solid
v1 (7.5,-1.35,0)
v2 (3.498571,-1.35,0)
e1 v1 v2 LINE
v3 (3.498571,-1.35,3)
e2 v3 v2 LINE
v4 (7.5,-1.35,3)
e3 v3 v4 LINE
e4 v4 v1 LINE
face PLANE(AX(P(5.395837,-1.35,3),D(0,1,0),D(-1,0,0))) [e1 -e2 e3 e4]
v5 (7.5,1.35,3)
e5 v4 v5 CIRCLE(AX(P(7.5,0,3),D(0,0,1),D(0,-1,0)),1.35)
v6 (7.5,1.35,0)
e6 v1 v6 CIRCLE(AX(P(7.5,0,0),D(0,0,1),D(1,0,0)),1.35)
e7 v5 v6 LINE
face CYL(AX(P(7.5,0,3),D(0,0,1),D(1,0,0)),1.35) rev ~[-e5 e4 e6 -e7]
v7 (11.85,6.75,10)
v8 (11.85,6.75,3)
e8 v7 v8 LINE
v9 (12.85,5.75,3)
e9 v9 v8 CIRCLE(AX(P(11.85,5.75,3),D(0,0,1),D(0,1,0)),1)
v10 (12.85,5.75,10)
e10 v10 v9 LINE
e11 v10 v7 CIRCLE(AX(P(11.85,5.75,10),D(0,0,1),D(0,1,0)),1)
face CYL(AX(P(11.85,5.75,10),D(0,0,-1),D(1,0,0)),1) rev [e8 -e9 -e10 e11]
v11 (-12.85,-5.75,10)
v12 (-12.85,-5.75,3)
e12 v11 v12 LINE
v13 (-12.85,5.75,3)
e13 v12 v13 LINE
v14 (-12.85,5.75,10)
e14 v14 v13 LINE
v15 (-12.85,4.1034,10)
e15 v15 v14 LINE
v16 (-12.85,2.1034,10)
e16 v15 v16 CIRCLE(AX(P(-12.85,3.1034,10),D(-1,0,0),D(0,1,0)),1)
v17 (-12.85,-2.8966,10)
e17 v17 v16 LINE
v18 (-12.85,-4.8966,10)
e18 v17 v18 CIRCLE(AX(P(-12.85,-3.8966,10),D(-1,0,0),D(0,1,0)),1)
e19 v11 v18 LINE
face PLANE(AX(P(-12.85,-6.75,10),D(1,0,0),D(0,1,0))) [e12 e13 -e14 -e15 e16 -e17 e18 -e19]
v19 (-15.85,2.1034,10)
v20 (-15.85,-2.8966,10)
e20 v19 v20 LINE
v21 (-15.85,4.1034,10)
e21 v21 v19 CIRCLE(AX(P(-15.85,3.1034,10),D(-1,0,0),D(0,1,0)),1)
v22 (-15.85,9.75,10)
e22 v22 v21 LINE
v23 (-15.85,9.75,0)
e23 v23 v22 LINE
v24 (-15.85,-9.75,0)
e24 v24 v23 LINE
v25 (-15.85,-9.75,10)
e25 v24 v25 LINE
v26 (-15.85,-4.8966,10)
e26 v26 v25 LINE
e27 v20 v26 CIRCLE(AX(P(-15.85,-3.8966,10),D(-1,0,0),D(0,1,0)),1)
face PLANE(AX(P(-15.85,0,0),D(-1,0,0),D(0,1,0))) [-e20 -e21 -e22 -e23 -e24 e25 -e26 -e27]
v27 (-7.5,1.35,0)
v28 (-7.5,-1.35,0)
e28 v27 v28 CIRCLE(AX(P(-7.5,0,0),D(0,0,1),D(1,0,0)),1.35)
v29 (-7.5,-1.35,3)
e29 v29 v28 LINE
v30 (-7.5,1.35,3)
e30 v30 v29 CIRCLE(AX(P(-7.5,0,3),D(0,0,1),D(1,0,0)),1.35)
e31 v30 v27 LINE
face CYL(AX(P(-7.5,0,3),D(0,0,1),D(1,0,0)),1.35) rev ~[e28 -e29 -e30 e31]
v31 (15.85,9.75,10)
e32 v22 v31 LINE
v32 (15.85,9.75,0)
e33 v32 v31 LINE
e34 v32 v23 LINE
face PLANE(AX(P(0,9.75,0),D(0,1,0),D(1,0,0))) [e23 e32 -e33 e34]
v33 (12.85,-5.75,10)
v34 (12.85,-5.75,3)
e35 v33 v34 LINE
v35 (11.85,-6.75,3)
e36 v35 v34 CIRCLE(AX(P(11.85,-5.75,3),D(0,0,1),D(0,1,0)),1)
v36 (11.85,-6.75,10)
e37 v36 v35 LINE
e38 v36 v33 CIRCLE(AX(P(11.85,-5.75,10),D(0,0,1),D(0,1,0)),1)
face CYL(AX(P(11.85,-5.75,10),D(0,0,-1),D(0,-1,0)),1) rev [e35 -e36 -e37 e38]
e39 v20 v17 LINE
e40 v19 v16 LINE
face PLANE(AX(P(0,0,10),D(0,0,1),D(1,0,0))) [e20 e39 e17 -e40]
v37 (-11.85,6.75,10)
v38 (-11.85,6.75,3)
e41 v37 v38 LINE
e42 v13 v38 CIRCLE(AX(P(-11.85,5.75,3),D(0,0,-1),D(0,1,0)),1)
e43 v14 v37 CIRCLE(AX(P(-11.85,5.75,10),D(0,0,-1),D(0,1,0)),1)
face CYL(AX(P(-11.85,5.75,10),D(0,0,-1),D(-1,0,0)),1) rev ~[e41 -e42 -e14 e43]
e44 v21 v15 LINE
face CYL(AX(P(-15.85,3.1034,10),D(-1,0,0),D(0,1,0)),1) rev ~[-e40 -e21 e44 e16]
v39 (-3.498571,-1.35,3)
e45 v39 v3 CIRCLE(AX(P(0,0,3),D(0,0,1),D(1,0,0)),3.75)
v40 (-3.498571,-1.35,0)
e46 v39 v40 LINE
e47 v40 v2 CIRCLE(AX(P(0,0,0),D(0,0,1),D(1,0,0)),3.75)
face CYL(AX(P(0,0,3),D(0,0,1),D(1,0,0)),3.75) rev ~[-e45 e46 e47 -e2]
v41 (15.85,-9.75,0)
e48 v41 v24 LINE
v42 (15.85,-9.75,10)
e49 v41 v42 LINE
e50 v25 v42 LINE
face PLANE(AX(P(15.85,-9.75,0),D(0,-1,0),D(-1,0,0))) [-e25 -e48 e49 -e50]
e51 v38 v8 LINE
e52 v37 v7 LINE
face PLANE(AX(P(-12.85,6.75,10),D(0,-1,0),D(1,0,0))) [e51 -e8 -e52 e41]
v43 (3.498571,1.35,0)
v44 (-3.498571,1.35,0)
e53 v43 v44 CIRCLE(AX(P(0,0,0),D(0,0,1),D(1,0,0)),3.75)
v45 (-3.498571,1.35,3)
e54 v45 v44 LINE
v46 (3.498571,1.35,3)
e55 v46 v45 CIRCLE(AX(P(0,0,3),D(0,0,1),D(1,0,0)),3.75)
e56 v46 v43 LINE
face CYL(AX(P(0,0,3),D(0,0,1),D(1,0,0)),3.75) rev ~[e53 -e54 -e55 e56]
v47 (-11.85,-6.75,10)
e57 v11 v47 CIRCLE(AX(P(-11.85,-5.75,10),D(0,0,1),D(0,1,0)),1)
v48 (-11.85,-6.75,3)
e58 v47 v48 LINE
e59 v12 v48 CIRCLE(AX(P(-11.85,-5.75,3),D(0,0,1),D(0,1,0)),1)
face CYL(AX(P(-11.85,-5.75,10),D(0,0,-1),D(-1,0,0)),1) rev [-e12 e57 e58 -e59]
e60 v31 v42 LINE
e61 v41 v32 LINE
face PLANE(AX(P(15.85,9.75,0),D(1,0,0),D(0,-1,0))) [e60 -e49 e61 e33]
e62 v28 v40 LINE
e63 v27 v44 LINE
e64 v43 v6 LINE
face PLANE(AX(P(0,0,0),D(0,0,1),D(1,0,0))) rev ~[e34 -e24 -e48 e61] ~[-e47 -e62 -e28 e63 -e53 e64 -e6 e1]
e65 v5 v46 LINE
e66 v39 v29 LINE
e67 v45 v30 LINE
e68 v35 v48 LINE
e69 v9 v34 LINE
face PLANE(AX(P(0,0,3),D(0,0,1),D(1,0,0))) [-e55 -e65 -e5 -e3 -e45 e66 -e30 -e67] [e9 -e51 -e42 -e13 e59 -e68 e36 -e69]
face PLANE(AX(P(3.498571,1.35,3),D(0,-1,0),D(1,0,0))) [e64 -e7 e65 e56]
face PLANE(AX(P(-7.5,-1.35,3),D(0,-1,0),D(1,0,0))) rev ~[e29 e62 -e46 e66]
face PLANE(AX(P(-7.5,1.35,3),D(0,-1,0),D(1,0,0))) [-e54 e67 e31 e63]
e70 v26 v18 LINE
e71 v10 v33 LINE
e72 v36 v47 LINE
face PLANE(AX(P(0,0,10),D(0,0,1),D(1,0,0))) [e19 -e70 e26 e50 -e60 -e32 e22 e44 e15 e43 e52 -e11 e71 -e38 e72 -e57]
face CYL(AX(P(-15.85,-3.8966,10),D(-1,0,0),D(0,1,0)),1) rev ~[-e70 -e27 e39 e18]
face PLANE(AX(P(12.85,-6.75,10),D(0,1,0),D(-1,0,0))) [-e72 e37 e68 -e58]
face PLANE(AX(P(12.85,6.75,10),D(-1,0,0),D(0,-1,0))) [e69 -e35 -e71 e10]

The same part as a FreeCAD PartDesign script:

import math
import FreeCAD as App
import Part
import Sketcher
from FreeCAD import Vector
Q = App.Units.Quantity


def edges_at(feature, points):
    """Names of the edges that pass closest to the given points."""
    edges = feature.Shape.Edges
    near = lambda p: min(range(len(edges)), key=lambda i: edges[i].distToShape(Part.Vertex(*p))[0])
    return sorted({f"Edge{near(p) + 1}" for p in points})


def add_polygon(sketch, points):
    """Adds a closed chain of lines whose ends are joined by coincident constraints."""
    first, n = sketch.GeometryCount, len(points)
    for a, b in zip(points, points[1:] + points[:1]):
        sketch.addGeometry(Part.LineSegment(App.Vector(*a, 0), App.Vector(*b, 0)), False)
    for i in range(n):
        sketch.addConstraint(Sketcher.Constraint("Coincident", first + i, 2, first + (i + 1) % n, 1))

doc = App.newDocument("Part")
body = doc.addObject("PartDesign::Body", "Body")

sketch1 = body.newObject("Sketcher::SketchObject", "Sketch")
sketch1.AttachmentSupport = (doc.getObject("XY_Plane"), [""])
sketch1.MapMode = "FlatFace"
add_polygon(sketch1, [(15.85, 9.75), (-15.85, 9.75), (-15.85, -9.75), (15.85, -9.75)])
sketch1.addConstraint(Sketcher.Constraint("Horizontal", 0))
sketch1.addConstraint(Sketcher.Constraint("Vertical", 1))
sketch1.addConstraint(Sketcher.Constraint("Horizontal", 2))
sketch1.addConstraint(Sketcher.Constraint("Vertical", 3))
sketch1.addConstraint(Sketcher.Constraint("Symmetric", 0, 2, 2, 2, -1, 1))
sketch1.addConstraint(Sketcher.Constraint("DistanceX", 0, 2, 0, 1, Q("31.7 mm")))
sketch1.addConstraint(Sketcher.Constraint("DistanceY", 1, 2, 1, 1, Q("19.5 mm")))
pad1 = body.newObject("PartDesign::Pad", "Pad")
pad1.Profile = sketch1
pad1.Length = 10

sketch2 = body.newObject("Sketcher::SketchObject", "Sketch001")
sketch2.AttachmentSupport = (doc.getObject("XY_Plane"), [""])
sketch2.MapMode = "FlatFace"
sketch2.AttachmentOffset = App.Placement(Vector(0, 0, 10), App.Rotation())
add_polygon(sketch2, [(12.85, 6.75), (-12.85, 6.75), (-12.85, -6.75), (12.85, -6.75)])
sketch2.addConstraint(Sketcher.Constraint("Horizontal", 0))
sketch2.addConstraint(Sketcher.Constraint("Vertical", 1))
sketch2.addConstraint(Sketcher.Constraint("Horizontal", 2))
sketch2.addConstraint(Sketcher.Constraint("Vertical", 3))
sketch2.addConstraint(Sketcher.Constraint("Symmetric", 0, 2, 2, 2, -1, 1))
sketch2.addConstraint(Sketcher.Constraint("DistanceX", 0, 2, 0, 1, Q("25.7 mm")))
sketch2.addConstraint(Sketcher.Constraint("DistanceY", 1, 2, 1, 1, Q("13.5 mm")))
pocket1 = body.newObject("PartDesign::Pocket", "Pocket")
pocket1.Profile = sketch2
pocket1.Length = 7

sketch3 = body.newObject("Sketcher::SketchObject", "Sketch002")
sketch3.AttachmentSupport = (doc.getObject("YZ_Plane"), [""])
sketch3.MapMode = "FlatFace"
sketch3.AttachmentOffset = App.Placement(Vector(0, 0, -15.85), App.Rotation())
sketch3.addGeometry(Part.ArcOfCircle(Part.Circle(Vector(-3.8966, 10, 0), Vector(0, 0, 1), 1), math.radians(180), math.radians(360)), False)
sketch3.addGeometry(Part.LineSegment(Vector(-4.8966, 10, 0), Vector(-2.8966, 10, 0)), False)
sketch3.addGeometry(Part.ArcOfCircle(Part.Circle(Vector(3.1034, 10, 0), Vector(0, 0, 1), 1), math.radians(180), math.radians(360)), False)
sketch3.addGeometry(Part.LineSegment(Vector(2.1034, 10, 0), Vector(4.1034, 10, 0)), False)
sketch3.addConstraint(Sketcher.Constraint("Coincident", 0, 1, 1, 1))
sketch3.addConstraint(Sketcher.Constraint("Coincident", 1, 2, 0, 2))
sketch3.addConstraint(Sketcher.Constraint("Coincident", 2, 1, 3, 1))
sketch3.addConstraint(Sketcher.Constraint("Coincident", 3, 2, 2, 2))
sketch3.addConstraint(Sketcher.Constraint("Horizontal", 1))
sketch3.addConstraint(Sketcher.Constraint("Horizontal", 3))
sketch3.addConstraint(Sketcher.Constraint("Equal", 0, 2))
sketch3.addConstraint(Sketcher.Constraint("Horizontal", 0, 3, 2, 3))
sketch3.addConstraint(Sketcher.Constraint("Horizontal", 2, 3, 0, 1))
sketch3.addConstraint(Sketcher.Constraint("Horizontal", 1, 2, 2, 1))
sketch3.addConstraint(Sketcher.Constraint("Radius", 0, Q("1 mm")))
sketch3.addConstraint(Sketcher.Constraint("DistanceX", 0, 3, 2, 3, Q("7 mm")))
sketch3.addConstraint(Sketcher.Constraint("DistanceY", -1, 1, 0, 3, Q("10 mm")))
sketch3.addConstraint(Sketcher.Constraint("DistanceX", 0, 3, -1, 1, Q("3.8966 mm")))
pocket2 = body.newObject("PartDesign::Pocket", "Pocket001")
pocket2.Profile = sketch3
pocket2.Length = 7
pocket2.Reversed = True
doc.recompute()

fillet = body.newObject("PartDesign::Fillet", "Fillet")
fillet.Base = (pocket2, edges_at(pocket2, [
    (12.85, -6.75, 6.5),
    (12.85, 6.75, 6.5),
    (-12.85, 6.75, 6.5),
    (-12.85, -6.75, 6.5),
]))
fillet.Radius = 1

sketch4 = body.newObject("Sketcher::SketchObject", "Sketch003")
sketch4.AttachmentSupport = (doc.getObject("XY_Plane"), [""])
sketch4.MapMode = "FlatFace"
sketch4.AttachmentOffset = App.Placement(Vector(0, 0, 3), App.Rotation())
sketch4.addGeometry(Part.LineSegment(Vector(-7.5, -1.35, 0), Vector(-3.498571, -1.35, 0)), False)
sketch4.addGeometry(Part.ArcOfCircle(Part.Circle(Vector(0, 0, 0), Vector(0, 0, 1), 3.75), math.radians(-158.899804), math.radians(-21.100196)), False)
sketch4.addGeometry(Part.LineSegment(Vector(3.498571, -1.35, 0), Vector(7.5, -1.35, 0)), False)
sketch4.addGeometry(Part.ArcOfCircle(Part.Circle(Vector(7.5, 0, 0), Vector(0, 0, 1), 1.35), math.radians(-90), math.radians(90)), False)
sketch4.addGeometry(Part.LineSegment(Vector(7.5, 1.35, 0), Vector(3.498571, 1.35, 0)), False)
sketch4.addGeometry(Part.ArcOfCircle(Part.Circle(Vector(0, 0, 0), Vector(0, 0, 1), 3.75), math.radians(21.100196), math.radians(158.899804)), False)
sketch4.addGeometry(Part.LineSegment(Vector(-3.498571, 1.35, 0), Vector(-7.5, 1.35, 0)), False)
sketch4.addGeometry(Part.ArcOfCircle(Part.Circle(Vector(-7.5, 0, 0), Vector(0, 0, 1), 1.35), math.radians(90), math.radians(270)), False)
sketch4.addConstraint(Sketcher.Constraint("Coincident", 0, 2, 1, 1))
sketch4.addConstraint(Sketcher.Constraint("Coincident", 1, 2, 2, 1))
sketch4.addConstraint(Sketcher.Constraint("Tangent", 2, 2, 3, 1))
sketch4.addConstraint(Sketcher.Constraint("Tangent", 3, 2, 4, 1))
sketch4.addConstraint(Sketcher.Constraint("Coincident", 4, 2, 5, 1))
sketch4.addConstraint(Sketcher.Constraint("Coincident", 5, 2, 6, 1))
sketch4.addConstraint(Sketcher.Constraint("Tangent", 6, 2, 7, 1))
sketch4.addConstraint(Sketcher.Constraint("Tangent", 7, 2, 0, 1))
sketch4.addConstraint(Sketcher.Constraint("Horizontal", 0))
sketch4.addConstraint(Sketcher.Constraint("Horizontal", 2))
sketch4.addConstraint(Sketcher.Constraint("Horizontal", 4))
sketch4.addConstraint(Sketcher.Constraint("Horizontal", 6))
sketch4.addConstraint(Sketcher.Constraint("Coincident", 1, 3, -1, 1))
sketch4.addConstraint(Sketcher.Constraint("Coincident", 5, 3, -1, 1))
sketch4.addConstraint(Sketcher.Constraint("Equal", 1, 5))
sketch4.addConstraint(Sketcher.Constraint("Equal", 3, 7))
sketch4.addConstraint(Sketcher.Constraint("Symmetric", 3, 3, 7, 3, -1, 1))
sketch4.addConstraint(Sketcher.Constraint("PointOnObject", 3, 3, -1))
sketch4.addConstraint(Sketcher.Constraint("Radius", 1, Q("3.75 mm")))
sketch4.addConstraint(Sketcher.Constraint("Radius", 3, Q("1.35 mm")))
sketch4.addConstraint(Sketcher.Constraint("DistanceX", -1, 1, 3, 3, Q("7.5 mm")))
pocket3 = body.newObject("PartDesign::Pocket", "Pocket002")
pocket3.Profile = sketch4
pocket3.Length = 5

doc.recompute()
